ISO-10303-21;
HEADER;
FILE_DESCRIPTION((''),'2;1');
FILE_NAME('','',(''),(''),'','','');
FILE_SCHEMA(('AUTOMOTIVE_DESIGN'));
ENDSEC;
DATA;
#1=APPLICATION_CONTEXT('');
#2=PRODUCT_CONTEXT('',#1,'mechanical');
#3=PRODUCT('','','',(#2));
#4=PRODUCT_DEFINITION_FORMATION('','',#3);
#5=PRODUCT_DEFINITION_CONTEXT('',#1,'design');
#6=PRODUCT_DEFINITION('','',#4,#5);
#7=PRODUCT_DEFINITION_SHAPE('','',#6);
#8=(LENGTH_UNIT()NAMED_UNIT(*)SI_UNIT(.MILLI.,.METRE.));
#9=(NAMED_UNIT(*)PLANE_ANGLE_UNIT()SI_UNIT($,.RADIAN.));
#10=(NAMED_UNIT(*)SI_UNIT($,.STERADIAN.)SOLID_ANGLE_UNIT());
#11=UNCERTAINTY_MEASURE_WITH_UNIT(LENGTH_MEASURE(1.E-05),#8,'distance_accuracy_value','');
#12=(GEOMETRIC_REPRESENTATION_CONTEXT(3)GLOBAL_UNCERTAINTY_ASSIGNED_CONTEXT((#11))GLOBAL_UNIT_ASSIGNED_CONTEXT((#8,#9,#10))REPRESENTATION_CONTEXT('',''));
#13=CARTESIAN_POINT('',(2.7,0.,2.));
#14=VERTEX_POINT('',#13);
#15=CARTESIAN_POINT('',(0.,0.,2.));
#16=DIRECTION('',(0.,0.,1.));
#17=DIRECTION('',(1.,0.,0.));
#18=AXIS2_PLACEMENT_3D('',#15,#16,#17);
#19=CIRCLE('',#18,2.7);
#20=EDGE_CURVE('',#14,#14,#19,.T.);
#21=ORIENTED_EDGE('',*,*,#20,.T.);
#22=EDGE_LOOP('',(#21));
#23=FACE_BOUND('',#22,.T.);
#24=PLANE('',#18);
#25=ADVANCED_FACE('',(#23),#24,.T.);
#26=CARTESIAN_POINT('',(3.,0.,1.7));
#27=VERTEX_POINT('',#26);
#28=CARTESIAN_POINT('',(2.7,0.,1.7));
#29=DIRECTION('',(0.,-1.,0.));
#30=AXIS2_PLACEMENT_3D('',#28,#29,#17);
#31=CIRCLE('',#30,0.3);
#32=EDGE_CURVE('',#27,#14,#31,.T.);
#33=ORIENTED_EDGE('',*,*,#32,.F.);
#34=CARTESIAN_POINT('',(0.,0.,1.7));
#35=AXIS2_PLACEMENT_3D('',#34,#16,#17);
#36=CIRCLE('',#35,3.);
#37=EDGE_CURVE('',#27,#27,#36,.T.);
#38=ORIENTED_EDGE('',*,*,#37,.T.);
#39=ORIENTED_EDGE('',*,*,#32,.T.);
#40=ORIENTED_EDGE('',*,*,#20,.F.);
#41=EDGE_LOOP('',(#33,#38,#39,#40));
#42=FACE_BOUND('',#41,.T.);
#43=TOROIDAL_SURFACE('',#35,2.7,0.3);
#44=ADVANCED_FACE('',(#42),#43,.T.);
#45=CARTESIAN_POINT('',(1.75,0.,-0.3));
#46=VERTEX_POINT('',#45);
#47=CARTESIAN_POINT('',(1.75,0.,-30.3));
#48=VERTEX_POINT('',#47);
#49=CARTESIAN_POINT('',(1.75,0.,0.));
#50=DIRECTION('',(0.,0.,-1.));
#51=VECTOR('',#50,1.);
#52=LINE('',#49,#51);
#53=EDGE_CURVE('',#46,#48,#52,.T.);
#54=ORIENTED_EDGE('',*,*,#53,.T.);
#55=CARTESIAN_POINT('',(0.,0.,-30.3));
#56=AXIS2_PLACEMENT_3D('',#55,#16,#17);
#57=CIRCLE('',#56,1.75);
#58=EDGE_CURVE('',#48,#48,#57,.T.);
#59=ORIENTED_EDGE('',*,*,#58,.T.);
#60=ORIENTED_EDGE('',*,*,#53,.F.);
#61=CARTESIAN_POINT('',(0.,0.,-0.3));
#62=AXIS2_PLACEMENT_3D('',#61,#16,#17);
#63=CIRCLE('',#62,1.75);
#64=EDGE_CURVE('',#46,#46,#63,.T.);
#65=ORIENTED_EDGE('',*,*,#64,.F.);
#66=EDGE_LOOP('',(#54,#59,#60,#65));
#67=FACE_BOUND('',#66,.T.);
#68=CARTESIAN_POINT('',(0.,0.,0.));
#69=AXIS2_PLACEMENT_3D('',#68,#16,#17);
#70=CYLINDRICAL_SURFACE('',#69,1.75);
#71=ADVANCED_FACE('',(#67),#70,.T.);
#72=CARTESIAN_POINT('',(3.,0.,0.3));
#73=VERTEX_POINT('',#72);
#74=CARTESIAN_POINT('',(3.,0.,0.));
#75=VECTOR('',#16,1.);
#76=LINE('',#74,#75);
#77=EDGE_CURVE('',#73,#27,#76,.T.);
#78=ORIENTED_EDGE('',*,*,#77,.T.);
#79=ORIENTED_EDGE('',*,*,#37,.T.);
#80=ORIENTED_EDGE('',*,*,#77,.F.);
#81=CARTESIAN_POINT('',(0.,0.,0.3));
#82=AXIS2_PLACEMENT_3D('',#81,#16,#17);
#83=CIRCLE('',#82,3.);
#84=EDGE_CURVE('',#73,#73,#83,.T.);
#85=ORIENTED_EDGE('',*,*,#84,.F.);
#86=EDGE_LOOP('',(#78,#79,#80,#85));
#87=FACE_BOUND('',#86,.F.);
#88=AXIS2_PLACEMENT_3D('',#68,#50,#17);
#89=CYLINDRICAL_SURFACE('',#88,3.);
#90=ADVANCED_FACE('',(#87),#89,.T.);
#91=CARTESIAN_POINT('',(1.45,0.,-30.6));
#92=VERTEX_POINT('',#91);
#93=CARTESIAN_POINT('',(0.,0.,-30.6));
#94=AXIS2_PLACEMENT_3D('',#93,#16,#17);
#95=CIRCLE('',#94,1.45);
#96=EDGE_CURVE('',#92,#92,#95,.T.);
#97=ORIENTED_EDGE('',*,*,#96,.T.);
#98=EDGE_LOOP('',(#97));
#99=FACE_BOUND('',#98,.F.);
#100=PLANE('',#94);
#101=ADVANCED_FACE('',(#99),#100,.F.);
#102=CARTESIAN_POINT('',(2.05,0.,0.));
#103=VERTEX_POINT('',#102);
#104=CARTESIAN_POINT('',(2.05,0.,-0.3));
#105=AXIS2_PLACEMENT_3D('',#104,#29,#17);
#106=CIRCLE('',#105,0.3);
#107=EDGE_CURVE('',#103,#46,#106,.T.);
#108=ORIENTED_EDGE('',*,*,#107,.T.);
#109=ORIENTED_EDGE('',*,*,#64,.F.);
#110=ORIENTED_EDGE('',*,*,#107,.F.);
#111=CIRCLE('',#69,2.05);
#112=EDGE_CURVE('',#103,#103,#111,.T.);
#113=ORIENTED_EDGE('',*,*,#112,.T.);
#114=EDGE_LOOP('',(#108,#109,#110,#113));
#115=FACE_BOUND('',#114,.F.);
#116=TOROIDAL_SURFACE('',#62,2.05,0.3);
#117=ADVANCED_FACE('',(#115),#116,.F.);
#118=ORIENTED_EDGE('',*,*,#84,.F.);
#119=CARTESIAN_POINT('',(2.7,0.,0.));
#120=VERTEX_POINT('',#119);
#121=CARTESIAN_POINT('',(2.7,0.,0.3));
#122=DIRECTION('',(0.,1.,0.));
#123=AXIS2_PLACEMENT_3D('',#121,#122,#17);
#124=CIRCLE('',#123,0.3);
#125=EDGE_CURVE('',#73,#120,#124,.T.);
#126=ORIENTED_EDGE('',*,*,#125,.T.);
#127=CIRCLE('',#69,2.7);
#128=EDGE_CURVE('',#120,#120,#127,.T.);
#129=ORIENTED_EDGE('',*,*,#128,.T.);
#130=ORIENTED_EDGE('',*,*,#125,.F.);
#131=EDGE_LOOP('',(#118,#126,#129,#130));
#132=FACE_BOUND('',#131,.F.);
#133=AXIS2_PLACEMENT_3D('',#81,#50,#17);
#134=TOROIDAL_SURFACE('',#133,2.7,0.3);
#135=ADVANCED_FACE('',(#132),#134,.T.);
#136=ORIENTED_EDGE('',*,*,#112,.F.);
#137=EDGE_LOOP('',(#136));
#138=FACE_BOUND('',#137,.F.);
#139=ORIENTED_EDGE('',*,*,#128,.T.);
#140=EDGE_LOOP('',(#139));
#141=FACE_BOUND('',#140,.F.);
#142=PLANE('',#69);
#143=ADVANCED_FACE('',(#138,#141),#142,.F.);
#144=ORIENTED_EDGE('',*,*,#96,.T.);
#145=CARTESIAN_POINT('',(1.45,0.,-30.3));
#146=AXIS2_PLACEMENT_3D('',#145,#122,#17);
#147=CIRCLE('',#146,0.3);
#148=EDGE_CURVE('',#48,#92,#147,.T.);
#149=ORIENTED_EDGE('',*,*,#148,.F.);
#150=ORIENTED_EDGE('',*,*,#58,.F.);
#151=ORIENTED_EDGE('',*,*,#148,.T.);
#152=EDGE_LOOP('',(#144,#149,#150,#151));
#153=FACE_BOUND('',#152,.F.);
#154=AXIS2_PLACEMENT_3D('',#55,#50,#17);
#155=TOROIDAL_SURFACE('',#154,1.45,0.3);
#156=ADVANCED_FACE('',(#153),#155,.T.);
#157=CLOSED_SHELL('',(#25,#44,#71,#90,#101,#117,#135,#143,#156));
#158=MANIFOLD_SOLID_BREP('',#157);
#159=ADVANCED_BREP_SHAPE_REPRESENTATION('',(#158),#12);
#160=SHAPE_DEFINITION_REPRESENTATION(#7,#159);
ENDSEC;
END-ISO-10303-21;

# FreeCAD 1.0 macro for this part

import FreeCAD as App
import Part
import Sketcher
from FreeCAD import Vector
Q = App.Units.Quantity


def edges_at(feature, points):
    """Names of the edges that pass closest to the given points."""
    edges = feature.Shape.Edges
    near = lambda p: min(range(len(edges)), key=lambda i: edges[i].distToShape(Part.Vertex(*p))[0])
    return sorted({f"Edge{near(p) + 1}" for p in points})

doc = App.newDocument("Part")
body = doc.addObject("PartDesign::Body", "Body")

sketch1 = body.newObject("Sketcher::SketchObject", "Sketch")
sketch1.AttachmentSupport = (doc.getObject("XY_Plane"), [""])
sketch1.MapMode = "FlatFace"
sketch1.addGeometry(Part.Circle(Vector(0, 0, 0), Vector(0, 0, 1), 3), False)
sketch1.addConstraint(Sketcher.Constraint("Coincident", 0, 3, -1, 1))
sketch1.addConstraint(Sketcher.Constraint("Diameter", 0, Q("6 mm")))
pad1 = body.newObject("PartDesign::Pad", "Pad")
pad1.Profile = sketch1
pad1.Length = 2

sketch2 = body.newObject("Sketcher::SketchObject", "Sketch001")
sketch2.AttachmentSupport = (doc.getObject("XY_Plane"), [""])
sketch2.MapMode = "FlatFace"
sketch2.addGeometry(Part.Circle(Vector(0, 0, 0), Vector(0, 0, 1), 1.8), False)
sketch2.addConstraint(Sketcher.Constraint("Coincident", 0, 3, -1, 1))
sketch2.addConstraint(Sketcher.Constraint("Diameter", 0, Q("3.5 mm")))
pad2 = body.newObject("PartDesign::Pad", "Pad001")
pad2.Profile = sketch2
pad2.Length = 30.6
pad2.Reversed = True
doc.recompute()

fillet = body.newObject("PartDesign::Fillet", "Fillet")
fillet.Base = (pad2, edges_at(pad2, [
    (-3, 0, 0),
    (-3, 0, 2),
    (-1.75, 0, -30.6),
    (-1.75, 0, 0),
]))
fillet.Radius = 0.3

doc.recompute()
